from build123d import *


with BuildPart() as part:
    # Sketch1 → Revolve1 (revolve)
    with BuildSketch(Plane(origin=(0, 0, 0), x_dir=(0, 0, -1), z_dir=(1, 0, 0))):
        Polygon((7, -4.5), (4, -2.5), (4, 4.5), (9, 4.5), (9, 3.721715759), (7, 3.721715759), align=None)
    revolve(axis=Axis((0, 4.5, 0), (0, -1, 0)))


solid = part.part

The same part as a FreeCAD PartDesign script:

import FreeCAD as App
import Part
import Sketcher


def add_polygon(sketch, points):
    """Adds a closed chain of lines whose ends are joined by coincident constraints."""
    first, n = sketch.GeometryCount, len(points)
    for a, b in zip(points, points[1:] + points[:1]):
        sketch.addGeometry(Part.LineSegment(App.Vector(*a, 0), App.Vector(*b, 0)), False)
    for i in range(n):
        sketch.addConstraint(Sketcher.Constraint("Coincident", first + i, 2, first + (i + 1) % n, 1))

doc = App.newDocument("Part")
body = doc.addObject("PartDesign::Body", "Body")

# Sketch on YZ plane
sketch1 = body.newObject("Sketcher::SketchObject", "Sketch")
sketch1.AttachmentSupport = (doc.getObject("YZ_Plane"), [""])
sketch1.MapMode = "FlatFace"
add_polygon(sketch1, [(-2.5, -4), (-4.5, -7), (3.7, -7), (3.7, -9), (4.5, -9), (4.5, -4)])  # lines 0-5
sketch1.addConstraint(Sketcher.Constraint("Horizontal", 1))
sketch1.addConstraint(Sketcher.Constraint("Vertical", 2))
sketch1.addConstraint(Sketcher.Constraint("Horizontal", 3))
sketch1.addConstraint(Sketcher.Constraint("Vertical", 4))
sketch1.addConstraint(Sketcher.Constraint("Horizontal", 5))
sketch1.addConstraint(Sketcher.Constraint("DistanceX", 5, 2, 5, 1, 7.0))
sketch1.addConstraint(Sketcher.Constraint("DistanceY", 2, 2, 2, 1, 2.0))
sketch1.addConstraint(Sketcher.Constraint("DistanceY", 4, 1, 4, 2, 5.0))
sketch1.addConstraint(Sketcher.Constraint("DistanceY", 0, 2, -1, 1, 7.0))
sketch1.addConstraint(Sketcher.Constraint("DistanceX", 0, 2, 3, 2, 9.0))
sketch1.addConstraint(Sketcher.Constraint("DistanceX", 0, 2, -1, 1, 4.5))
sketch1.addConstraint(Sketcher.Constraint("DistanceX", 1, 1, 1, 2, 8.221716))
revolution = body.newObject("PartDesign::Revolution", "Revolution")
revolution.Profile = sketch1
revolution.ReferenceAxis = (sketch1, ["H_Axis"])
revolution.Angle = 360

doc.recompute()
